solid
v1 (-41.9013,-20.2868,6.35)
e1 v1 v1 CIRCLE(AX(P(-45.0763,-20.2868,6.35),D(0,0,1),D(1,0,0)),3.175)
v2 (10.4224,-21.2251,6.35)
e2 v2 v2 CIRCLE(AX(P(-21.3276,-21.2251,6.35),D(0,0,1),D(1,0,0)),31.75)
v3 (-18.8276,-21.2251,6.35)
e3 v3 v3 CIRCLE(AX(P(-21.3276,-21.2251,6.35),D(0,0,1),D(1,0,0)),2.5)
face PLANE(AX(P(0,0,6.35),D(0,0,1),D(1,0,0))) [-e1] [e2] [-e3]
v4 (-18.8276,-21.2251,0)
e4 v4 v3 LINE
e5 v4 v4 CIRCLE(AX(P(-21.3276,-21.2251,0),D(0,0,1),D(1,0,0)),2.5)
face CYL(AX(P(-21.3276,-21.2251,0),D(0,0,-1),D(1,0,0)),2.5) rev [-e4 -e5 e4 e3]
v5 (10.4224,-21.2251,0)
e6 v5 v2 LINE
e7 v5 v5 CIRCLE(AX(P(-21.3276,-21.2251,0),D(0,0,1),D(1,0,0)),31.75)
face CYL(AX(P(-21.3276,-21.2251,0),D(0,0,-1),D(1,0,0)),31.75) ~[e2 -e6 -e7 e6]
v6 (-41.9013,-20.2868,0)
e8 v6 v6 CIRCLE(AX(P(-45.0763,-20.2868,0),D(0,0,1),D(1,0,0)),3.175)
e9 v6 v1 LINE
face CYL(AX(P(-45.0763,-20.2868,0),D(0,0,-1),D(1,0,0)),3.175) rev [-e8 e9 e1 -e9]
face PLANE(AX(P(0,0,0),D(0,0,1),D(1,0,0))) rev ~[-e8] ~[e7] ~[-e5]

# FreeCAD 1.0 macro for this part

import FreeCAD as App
import Part
import Sketcher
from FreeCAD import Vector
Q = App.Units.Quantity

doc = App.newDocument("Part")
body = doc.addObject("PartDesign::Body", "Body")

# Sketch on XY plane
sketch1 = body.newObject("Sketcher::SketchObject", "Sketch")
sketch1.AttachmentSupport = (doc.getObject("XY_Plane"), [""])
sketch1.MapMode = "FlatFace"
sketch1.addGeometry(Part.Circle(Vector(-21.3276, -21.2251, 0), Vector(0, 0, 1), 31.75), False)
sketch1.addGeometry(Part.Circle(Vector(-21.3276, -21.2251, 0), Vector(0, 0, 1), 2.5), False)
sketch1.addGeometry(Part.Circle(Vector(-45.0763, -20.2868, 0), Vector(0, 0, 1), 3.175), False)
sketch1.addConstraint(Sketcher.Constraint("Coincident", 1, 3, 0, 3))
sketch1.addConstraint(Sketcher.Constraint("Diameter", 0, Q("2.5 in")))
sketch1.addConstraint(Sketcher.Constraint("Diameter", 2, Q("0.25 in")))
sketch1.addConstraint(Sketcher.Constraint("Diameter", 1, 5.0))
sketch1.addConstraint(Sketcher.Constraint("DistanceX", 2, 3, 0, 3, Q("0.935 in")))
sketch1.addConstraint(Sketcher.Constraint("DistanceY", 2, 3, -1, 1, Q("0.7987 in")))
sketch1.addConstraint(Sketcher.Constraint("DistanceX", 0, 3, -1, 1, 21.3276))
sketch1.addConstraint(Sketcher.Constraint("DistanceY", 0, 3, -1, 1, 21.225))
pad1 = body.newObject("PartDesign::Pad", "Pad")
pad1.Profile = sketch1
pad1.Length = Q("0.25 in")

doc.recompute()
